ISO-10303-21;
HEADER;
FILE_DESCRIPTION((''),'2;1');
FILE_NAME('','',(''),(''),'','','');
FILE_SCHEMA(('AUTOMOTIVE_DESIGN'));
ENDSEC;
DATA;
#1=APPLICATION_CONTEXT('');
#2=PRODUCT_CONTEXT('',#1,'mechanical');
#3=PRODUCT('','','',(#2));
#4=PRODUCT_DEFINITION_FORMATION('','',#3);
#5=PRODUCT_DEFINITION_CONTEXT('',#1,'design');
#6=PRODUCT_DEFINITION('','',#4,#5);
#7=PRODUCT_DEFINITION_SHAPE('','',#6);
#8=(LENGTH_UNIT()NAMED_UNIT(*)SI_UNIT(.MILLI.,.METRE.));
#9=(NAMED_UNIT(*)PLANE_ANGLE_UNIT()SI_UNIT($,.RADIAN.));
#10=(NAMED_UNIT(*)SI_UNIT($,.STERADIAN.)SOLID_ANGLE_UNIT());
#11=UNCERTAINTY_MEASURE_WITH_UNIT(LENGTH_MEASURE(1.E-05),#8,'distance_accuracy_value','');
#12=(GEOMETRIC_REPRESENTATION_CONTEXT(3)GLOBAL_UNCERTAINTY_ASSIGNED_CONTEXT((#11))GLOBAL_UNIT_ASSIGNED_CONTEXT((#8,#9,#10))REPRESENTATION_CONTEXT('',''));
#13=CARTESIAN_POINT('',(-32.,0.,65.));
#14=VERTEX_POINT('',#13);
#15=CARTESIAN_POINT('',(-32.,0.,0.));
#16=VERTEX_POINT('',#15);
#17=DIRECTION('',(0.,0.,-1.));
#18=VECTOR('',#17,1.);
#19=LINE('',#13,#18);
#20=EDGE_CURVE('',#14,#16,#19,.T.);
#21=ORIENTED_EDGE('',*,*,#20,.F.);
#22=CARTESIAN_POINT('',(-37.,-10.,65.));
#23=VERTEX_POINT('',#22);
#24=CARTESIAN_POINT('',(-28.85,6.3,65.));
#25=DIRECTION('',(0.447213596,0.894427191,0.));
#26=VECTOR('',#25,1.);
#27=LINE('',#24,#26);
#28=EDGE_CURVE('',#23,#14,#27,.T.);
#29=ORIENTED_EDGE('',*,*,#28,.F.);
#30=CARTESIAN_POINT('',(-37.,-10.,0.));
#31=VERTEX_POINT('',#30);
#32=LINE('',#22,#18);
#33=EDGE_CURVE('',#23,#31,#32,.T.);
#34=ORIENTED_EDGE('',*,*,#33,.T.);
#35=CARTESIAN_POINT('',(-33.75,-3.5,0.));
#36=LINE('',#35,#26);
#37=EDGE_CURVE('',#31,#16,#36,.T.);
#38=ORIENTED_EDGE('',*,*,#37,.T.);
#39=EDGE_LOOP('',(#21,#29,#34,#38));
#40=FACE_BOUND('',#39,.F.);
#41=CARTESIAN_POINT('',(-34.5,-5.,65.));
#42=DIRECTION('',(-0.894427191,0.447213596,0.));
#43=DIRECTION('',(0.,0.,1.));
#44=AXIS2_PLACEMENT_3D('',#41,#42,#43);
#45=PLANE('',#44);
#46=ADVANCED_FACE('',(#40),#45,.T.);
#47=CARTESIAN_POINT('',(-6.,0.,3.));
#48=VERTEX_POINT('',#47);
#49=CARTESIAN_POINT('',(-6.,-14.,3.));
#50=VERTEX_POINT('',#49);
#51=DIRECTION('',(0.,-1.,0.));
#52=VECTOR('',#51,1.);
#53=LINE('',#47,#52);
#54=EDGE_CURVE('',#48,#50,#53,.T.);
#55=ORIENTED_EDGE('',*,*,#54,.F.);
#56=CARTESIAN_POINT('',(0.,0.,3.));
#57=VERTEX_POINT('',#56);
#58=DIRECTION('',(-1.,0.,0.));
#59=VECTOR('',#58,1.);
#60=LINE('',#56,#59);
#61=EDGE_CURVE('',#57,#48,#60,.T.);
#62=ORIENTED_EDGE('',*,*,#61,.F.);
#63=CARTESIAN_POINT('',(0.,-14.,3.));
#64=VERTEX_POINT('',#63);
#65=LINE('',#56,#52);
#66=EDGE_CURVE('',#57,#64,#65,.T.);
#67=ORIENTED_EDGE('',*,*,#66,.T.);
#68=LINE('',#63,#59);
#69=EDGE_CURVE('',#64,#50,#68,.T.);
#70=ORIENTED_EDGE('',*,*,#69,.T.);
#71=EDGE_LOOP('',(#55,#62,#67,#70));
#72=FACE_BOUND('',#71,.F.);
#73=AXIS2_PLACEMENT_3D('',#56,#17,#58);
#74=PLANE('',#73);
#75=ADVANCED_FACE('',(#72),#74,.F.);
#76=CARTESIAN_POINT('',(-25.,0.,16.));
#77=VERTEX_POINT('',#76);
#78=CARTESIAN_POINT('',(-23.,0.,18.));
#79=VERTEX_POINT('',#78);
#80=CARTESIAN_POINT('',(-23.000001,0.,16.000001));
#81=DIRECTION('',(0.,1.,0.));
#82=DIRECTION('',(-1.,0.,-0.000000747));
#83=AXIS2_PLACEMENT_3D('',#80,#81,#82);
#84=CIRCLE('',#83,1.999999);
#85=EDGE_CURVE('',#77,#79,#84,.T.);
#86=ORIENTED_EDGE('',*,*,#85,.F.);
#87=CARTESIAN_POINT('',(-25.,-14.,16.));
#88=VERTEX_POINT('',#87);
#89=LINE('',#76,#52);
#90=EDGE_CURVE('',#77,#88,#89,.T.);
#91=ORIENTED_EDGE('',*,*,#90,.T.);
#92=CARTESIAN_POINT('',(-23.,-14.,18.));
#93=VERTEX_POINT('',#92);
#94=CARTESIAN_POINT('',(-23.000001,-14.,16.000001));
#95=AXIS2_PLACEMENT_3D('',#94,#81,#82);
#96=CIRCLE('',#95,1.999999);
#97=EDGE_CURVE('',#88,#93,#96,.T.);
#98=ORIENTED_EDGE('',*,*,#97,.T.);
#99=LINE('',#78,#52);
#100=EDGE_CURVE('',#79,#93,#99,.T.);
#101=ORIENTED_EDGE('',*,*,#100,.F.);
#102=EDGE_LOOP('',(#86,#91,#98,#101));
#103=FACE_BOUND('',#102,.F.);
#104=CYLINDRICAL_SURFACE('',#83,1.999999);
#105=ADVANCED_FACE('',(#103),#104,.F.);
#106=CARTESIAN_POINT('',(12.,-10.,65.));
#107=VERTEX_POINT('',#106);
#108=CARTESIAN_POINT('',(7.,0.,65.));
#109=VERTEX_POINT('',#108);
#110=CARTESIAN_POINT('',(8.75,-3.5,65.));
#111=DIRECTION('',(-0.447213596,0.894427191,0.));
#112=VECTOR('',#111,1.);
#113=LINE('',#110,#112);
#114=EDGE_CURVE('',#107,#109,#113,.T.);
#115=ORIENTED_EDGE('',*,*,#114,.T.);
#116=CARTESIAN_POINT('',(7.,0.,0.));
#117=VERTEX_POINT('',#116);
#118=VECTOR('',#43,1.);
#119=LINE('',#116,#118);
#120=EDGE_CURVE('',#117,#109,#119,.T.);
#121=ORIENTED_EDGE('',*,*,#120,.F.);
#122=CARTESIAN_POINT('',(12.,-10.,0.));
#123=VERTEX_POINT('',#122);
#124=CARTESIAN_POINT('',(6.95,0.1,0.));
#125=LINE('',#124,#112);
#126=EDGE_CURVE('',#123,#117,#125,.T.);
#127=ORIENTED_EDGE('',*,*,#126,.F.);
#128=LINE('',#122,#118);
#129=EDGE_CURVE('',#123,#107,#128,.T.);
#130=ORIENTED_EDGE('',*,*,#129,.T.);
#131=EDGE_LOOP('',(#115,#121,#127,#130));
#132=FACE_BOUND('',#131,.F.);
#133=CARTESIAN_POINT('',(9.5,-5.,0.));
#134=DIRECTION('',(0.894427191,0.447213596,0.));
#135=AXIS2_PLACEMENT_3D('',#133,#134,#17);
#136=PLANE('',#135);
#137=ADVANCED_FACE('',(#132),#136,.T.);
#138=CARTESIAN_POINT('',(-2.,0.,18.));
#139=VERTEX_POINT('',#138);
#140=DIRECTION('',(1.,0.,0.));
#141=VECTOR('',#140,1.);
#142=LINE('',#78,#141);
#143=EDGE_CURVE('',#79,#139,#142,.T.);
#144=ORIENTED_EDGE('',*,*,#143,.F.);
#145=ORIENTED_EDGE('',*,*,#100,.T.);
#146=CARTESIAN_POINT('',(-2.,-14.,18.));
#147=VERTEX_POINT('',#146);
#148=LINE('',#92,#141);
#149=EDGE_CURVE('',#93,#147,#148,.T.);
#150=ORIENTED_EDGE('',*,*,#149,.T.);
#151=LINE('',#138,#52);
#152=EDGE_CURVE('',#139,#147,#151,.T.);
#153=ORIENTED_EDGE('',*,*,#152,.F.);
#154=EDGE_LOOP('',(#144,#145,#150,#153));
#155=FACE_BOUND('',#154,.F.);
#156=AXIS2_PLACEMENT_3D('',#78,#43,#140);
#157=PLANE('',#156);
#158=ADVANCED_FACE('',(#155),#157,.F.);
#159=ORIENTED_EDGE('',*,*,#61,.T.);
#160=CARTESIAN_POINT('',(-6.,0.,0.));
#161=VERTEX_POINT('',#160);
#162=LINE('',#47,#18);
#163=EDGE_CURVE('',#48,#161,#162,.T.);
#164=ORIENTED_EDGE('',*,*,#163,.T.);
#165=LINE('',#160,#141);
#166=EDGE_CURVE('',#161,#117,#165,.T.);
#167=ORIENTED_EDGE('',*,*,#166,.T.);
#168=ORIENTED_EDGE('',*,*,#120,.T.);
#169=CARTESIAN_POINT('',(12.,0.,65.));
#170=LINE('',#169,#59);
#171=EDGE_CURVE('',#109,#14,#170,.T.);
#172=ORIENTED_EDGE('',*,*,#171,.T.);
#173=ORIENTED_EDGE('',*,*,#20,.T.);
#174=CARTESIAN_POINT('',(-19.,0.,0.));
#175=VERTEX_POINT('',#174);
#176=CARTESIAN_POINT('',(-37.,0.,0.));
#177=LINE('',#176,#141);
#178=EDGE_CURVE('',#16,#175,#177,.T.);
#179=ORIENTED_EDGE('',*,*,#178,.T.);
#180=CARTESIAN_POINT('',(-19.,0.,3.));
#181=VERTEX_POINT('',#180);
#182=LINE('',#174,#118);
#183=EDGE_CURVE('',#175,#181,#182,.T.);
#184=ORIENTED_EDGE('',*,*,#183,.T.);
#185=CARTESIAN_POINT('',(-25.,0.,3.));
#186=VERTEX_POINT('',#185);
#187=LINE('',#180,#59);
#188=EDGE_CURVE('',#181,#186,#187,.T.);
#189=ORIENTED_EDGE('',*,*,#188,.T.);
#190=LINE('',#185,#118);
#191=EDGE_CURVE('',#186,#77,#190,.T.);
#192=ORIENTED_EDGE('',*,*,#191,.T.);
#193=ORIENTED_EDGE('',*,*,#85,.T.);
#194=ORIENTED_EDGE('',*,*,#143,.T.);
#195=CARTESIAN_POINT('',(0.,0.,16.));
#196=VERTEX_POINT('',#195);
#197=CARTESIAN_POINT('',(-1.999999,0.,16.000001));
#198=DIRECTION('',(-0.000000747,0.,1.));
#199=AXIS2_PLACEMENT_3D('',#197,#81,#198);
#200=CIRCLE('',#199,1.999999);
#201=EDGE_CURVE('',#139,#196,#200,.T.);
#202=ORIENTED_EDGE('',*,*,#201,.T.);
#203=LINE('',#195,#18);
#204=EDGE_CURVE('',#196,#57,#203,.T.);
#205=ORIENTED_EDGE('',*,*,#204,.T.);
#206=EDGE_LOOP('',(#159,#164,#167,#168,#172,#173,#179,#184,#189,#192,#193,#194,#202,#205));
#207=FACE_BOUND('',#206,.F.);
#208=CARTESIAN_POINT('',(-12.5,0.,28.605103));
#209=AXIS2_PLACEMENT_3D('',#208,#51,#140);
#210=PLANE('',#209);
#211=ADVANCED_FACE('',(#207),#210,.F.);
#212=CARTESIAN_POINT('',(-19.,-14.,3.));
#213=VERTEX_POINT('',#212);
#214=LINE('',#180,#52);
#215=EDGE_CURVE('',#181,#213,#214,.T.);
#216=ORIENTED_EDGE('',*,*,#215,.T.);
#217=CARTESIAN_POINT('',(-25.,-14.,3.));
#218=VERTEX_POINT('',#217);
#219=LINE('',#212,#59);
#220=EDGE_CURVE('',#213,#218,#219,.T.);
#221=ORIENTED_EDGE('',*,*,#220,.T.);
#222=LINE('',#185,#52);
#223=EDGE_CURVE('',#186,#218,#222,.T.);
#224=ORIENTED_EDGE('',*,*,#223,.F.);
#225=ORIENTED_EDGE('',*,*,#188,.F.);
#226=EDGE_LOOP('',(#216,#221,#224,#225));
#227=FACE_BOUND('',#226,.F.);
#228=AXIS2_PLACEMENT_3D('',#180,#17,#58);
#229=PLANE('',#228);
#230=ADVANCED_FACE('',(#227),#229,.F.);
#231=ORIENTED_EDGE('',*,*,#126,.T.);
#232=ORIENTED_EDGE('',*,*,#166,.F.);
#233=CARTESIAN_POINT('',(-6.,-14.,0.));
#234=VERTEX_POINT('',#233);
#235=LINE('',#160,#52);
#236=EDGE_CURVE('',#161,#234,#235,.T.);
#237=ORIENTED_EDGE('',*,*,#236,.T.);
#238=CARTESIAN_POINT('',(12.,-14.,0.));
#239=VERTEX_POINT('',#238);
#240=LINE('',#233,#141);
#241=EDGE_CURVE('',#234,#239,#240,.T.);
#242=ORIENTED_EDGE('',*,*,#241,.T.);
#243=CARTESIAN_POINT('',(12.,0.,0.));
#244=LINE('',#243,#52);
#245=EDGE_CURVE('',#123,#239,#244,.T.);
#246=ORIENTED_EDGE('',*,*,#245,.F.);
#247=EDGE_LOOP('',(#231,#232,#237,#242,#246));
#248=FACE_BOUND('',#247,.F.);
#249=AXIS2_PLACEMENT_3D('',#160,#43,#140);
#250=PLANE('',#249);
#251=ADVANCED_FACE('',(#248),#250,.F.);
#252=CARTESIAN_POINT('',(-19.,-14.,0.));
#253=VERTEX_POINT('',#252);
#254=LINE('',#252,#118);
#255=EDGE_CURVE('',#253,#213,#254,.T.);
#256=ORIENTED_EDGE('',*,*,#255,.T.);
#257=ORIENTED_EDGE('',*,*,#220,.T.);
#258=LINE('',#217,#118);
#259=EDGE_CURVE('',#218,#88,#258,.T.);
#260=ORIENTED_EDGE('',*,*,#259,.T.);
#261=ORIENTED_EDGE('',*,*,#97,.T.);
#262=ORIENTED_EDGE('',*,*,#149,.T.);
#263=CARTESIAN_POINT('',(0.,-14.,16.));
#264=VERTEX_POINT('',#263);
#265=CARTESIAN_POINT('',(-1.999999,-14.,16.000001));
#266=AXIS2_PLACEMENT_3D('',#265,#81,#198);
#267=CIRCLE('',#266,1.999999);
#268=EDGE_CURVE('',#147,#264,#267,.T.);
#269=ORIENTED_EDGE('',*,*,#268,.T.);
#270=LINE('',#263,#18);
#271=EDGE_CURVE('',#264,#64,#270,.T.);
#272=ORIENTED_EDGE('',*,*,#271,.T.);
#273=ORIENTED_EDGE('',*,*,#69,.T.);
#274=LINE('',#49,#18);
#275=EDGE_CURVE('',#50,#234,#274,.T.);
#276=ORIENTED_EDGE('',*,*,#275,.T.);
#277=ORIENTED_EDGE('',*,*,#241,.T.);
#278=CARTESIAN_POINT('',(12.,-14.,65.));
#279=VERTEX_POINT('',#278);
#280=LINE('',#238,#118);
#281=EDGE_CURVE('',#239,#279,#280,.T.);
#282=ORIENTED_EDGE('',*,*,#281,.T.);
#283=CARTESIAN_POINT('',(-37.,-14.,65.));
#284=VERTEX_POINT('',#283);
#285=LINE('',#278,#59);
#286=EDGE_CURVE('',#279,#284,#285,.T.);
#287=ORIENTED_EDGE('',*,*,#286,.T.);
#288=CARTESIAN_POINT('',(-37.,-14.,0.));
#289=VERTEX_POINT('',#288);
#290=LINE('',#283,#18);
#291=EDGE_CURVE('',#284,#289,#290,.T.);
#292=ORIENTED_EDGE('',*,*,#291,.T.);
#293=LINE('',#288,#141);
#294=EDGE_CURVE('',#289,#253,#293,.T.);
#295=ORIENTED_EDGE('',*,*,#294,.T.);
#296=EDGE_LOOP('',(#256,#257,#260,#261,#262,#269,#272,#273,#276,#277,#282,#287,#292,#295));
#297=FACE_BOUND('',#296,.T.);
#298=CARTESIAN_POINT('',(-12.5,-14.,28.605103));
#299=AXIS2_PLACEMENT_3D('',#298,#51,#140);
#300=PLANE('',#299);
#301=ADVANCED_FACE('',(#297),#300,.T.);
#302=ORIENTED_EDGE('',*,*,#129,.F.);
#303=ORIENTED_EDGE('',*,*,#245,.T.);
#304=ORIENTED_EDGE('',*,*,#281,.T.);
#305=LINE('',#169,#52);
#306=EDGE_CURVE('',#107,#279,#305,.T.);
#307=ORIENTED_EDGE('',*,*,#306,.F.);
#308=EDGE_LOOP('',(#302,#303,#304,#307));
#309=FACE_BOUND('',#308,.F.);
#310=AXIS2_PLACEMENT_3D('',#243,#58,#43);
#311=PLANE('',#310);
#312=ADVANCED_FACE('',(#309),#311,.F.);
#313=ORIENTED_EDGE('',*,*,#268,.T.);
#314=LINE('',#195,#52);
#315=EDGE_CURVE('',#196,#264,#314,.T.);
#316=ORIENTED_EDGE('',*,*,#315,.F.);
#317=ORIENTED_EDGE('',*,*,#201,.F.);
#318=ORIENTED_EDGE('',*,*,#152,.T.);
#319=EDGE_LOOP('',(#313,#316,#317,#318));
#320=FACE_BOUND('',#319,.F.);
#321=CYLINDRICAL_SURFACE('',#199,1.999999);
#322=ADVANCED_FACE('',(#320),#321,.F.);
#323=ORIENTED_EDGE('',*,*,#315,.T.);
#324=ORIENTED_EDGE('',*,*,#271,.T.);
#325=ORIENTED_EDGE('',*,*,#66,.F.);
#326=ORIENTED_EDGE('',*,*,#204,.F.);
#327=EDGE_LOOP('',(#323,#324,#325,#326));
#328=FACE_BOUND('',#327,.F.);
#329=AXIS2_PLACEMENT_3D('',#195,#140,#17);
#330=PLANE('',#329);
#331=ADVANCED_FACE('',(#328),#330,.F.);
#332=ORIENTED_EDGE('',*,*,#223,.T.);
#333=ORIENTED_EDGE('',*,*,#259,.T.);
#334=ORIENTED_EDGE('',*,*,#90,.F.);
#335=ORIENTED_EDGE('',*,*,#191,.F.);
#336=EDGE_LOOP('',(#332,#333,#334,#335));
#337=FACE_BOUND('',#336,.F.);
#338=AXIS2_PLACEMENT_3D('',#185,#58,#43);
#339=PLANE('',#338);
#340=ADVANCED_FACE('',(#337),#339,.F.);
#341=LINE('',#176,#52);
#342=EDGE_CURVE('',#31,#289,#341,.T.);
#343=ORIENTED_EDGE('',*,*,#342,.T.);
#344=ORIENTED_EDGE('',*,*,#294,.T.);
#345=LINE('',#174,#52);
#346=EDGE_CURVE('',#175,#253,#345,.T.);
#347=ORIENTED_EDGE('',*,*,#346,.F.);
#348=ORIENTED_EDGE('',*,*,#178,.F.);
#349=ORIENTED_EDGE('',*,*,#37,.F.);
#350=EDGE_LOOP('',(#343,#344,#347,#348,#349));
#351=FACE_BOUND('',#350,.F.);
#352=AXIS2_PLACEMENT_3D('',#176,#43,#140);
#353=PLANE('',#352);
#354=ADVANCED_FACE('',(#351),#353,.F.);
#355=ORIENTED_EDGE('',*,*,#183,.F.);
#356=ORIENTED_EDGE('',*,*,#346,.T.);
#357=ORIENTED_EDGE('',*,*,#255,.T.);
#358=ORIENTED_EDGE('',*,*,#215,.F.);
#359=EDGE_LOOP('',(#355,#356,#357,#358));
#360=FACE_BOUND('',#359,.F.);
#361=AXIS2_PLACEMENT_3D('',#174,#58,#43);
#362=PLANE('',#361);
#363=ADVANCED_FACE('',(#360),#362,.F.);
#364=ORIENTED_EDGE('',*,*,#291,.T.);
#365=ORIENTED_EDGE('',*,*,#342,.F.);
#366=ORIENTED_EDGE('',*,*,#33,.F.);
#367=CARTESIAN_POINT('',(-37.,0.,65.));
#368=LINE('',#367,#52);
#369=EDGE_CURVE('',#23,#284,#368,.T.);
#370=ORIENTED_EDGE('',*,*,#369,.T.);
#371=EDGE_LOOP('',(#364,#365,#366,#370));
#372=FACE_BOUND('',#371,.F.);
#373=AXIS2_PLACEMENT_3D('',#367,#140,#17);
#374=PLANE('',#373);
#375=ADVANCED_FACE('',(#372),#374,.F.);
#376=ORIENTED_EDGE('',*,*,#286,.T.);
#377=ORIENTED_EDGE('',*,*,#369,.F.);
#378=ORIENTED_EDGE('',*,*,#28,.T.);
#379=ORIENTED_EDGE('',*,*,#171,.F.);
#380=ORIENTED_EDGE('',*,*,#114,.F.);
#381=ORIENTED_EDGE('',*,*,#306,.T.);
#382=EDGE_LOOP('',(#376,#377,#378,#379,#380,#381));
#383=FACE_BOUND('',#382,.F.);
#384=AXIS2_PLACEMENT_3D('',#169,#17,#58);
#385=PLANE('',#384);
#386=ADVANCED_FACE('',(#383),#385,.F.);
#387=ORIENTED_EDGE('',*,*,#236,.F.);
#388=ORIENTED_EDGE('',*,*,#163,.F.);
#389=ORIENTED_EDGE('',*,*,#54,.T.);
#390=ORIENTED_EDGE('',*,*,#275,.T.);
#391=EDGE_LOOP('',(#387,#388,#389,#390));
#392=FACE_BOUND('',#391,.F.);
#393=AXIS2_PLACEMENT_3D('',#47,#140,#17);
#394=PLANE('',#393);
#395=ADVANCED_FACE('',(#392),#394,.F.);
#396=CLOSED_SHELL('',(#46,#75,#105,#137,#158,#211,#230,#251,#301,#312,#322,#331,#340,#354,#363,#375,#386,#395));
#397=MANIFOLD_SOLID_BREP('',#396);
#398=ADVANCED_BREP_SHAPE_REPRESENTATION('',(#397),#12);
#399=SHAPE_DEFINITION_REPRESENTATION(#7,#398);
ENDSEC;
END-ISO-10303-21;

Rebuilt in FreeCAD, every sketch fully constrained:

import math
import FreeCAD as App
import Part
import Sketcher
from FreeCAD import Vector
Q = App.Units.Quantity


def edges_at(feature, points):
    """Names of the edges that pass closest to the given points."""
    edges = feature.Shape.Edges
    near = lambda p: min(range(len(edges)), key=lambda i: edges[i].distToShape(Part.Vertex(*p))[0])
    return sorted({f"Edge{near(p) + 1}" for p in points})

doc = App.newDocument("Part")
params = doc.addObject("Spreadsheet::Sheet", "Params")
for row, (alias, value) in enumerate([
    ("sketch1_radius", "1.999999 mm"),
    ("sketch1_width", "18 mm"),
    ("sketch1_width2", "49 mm"),
    ("sketch1_width3", "6 mm"),
    ("sketch1_height", "65 mm"),
    ("pad1_length", "14 mm"),
    ("chamfer_size", "10 mm"),
    ("chamfer_size2", "5 mm"),
], start=1):
    params.set(f"A{row}", alias)
    params.set(f"B{row}", "=" + value)
    params.setAlias(f"B{row}", alias)

body = doc.addObject("PartDesign::Body", "Body")

sketch1 = doc.addObject("Sketcher::SketchObject", "Sketch")
body.addObject(sketch1)
sketch1.AttachmentSupport = (doc.XZ_Plane, [""])
sketch1.MapMode = "FlatFace"
sketch1.addGeometry(Part.LineSegment(Vector(-6, 0, 0), Vector(12, 0, 0)), False)
sketch1.addGeometry(Part.LineSegment(Vector(12, 0, 0), Vector(12, 65, 0)), False)
sketch1.addGeometry(Part.LineSegment(Vector(12, 65, 0), Vector(-37, 65, 0)), False)
sketch1.addGeometry(Part.LineSegment(Vector(-37, 65, 0), Vector(-37, 0, 0)), False)
sketch1.addGeometry(Part.LineSegment(Vector(-37, 0, 0), Vector(-19, 0, 0)), False)
sketch1.addGeometry(Part.LineSegment(Vector(-19, 0, 0), Vector(-19, 3, 0)), False)
sketch1.addGeometry(Part.LineSegment(Vector(-19, 3, 0), Vector(-25, 3, 0)), False)
sketch1.addGeometry(Part.LineSegment(Vector(-25, 3, 0), Vector(-25, 16, 0)), False)
sketch1.addGeometry(Part.ArcOfCircle(Part.Circle(Vector(-23, 16, 0), Vector(0, 0, 1), 2), math.radians(90), math.radians(180)), False)
sketch1.addGeometry(Part.LineSegment(Vector(-23, 18, 0), Vector(-2, 18, 0)), False)
sketch1.addGeometry(Part.ArcOfCircle(Part.Circle(Vector(-2, 16, 0), Vector(0, 0, 1), 2), math.radians(0), math.radians(90)), False)
sketch1.addGeometry(Part.LineSegment(Vector(0, 16, 0), Vector(0, 3, 0)), False)
sketch1.addGeometry(Part.LineSegment(Vector(0, 3, 0), Vector(-6, 3, 0)), False)
sketch1.addGeometry(Part.LineSegment(Vector(-6, 3, 0), Vector(-6, 0, 0)), False)
sketch1.addConstraint(Sketcher.Constraint("Coincident", 0, 2, 1, 1))
sketch1.addConstraint(Sketcher.Constraint("Coincident", 1, 2, 2, 1))
sketch1.addConstraint(Sketcher.Constraint("Coincident", 2, 2, 3, 1))
sketch1.addConstraint(Sketcher.Constraint("Coincident", 3, 2, 4, 1))
sketch1.addConstraint(Sketcher.Constraint("Coincident", 4, 2, 5, 1))
sketch1.addConstraint(Sketcher.Constraint("Coincident", 5, 2, 6, 1))
sketch1.addConstraint(Sketcher.Constraint("Coincident", 6, 2, 7, 1))
sketch1.addConstraint(Sketcher.Constraint("Tangent", 7, 2, 8, 2))
sketch1.addConstraint(Sketcher.Constraint("Tangent", 8, 1, 9, 1))
sketch1.addConstraint(Sketcher.Constraint("Tangent", 9, 2, 10, 2))
sketch1.addConstraint(Sketcher.Constraint("Tangent", 10, 1, 11, 1))
sketch1.addConstraint(Sketcher.Constraint("Coincident", 11, 2, 12, 1))
sketch1.addConstraint(Sketcher.Constraint("Coincident", 12, 2, 13, 1))
sketch1.addConstraint(Sketcher.Constraint("Coincident", 13, 2, 0, 1))
sketch1.addConstraint(Sketcher.Constraint("Horizontal", 0))
sketch1.addConstraint(Sketcher.Constraint("Vertical", 1))
sketch1.addConstraint(Sketcher.Constraint("Horizontal", 2))
sketch1.addConstraint(Sketcher.Constraint("Vertical", 3))
sketch1.addConstraint(Sketcher.Constraint("Horizontal", 4))
sketch1.addConstraint(Sketcher.Constraint("Vertical", 5))
sketch1.addConstraint(Sketcher.Constraint("Horizontal", 6))
sketch1.addConstraint(Sketcher.Constraint("Vertical", 7))
sketch1.addConstraint(Sketcher.Constraint("Horizontal", 9))
sketch1.addConstraint(Sketcher.Constraint("Vertical", 11))
sketch1.addConstraint(Sketcher.Constraint("Horizontal", 12))
sketch1.addConstraint(Sketcher.Constraint("Vertical", 13))
sketch1.addConstraint(Sketcher.Constraint("Equal", 8, 10))
sketch1.addConstraint(Sketcher.Constraint("PointOnObject", 0, 2, -1))
sketch1.addConstraint(Sketcher.Constraint("PointOnObject", 3, 2, -1))
sketch1.addConstraint(Sketcher.Constraint("PointOnObject", 10, 1, -2))
sketch1.addConstraint(Sketcher.Constraint("Horizontal", 6, 2, 11, 2))
sketch1.addConstraint(Sketcher.Constraint("Equal", 0, 4))
sketch1.addConstraint(Sketcher.Constraint("Equal", 6, 12))
sketch1.addConstraint(Sketcher.Constraint("Radius", 8, Q("1.999999 mm")))
sketch1.addConstraint(Sketcher.Constraint("DistanceX", 0, 1, 0, 2, Q("18 mm")))
sketch1.addConstraint(Sketcher.Constraint("DistanceX", 2, 2, 2, 1, Q("49 mm")))
sketch1.addConstraint(Sketcher.Constraint("DistanceX", 6, 2, 6, 1, Q("6 mm")))
sketch1.addConstraint(Sketcher.Constraint("DistanceY", 1, 1, 1, 2, Q("65 mm")))
sketch1.addConstraint(Sketcher.Constraint("DistanceY", 5, 1, 5, 2, Q("3 mm")))
sketch1.addConstraint(Sketcher.Constraint("DistanceY", 7, 1, 7, 2, Q("13 mm")))
sketch1.setExpression("Constraints[33]", "Params.sketch1_radius")
sketch1.setExpression("Constraints[34]", "Params.sketch1_width")
sketch1.setExpression("Constraints[35]", "Params.sketch1_width2")
sketch1.setExpression("Constraints[36]", "Params.sketch1_width3")
sketch1.setExpression("Constraints[37]", "Params.sketch1_height")
pad1 = doc.addObject("PartDesign::Pad", "Pad")
body.addObject(pad1)
pad1.Profile = sketch1
pad1.setExpression("Length", "Params.pad1_length")
doc.recompute()

chamfer = doc.addObject("PartDesign::Chamfer", "Chamfer")
body.addObject(chamfer)
chamfer.Base = (pad1, edges_at(pad1, [(12, 0, 32.5), (-37, 0, 32.5)]))
chamfer.ChamferType = "Two distances"
chamfer.setExpression("Size", "Params.chamfer_size")
chamfer.setExpression("Size2", "Params.chamfer_size2")

doc.recompute()
